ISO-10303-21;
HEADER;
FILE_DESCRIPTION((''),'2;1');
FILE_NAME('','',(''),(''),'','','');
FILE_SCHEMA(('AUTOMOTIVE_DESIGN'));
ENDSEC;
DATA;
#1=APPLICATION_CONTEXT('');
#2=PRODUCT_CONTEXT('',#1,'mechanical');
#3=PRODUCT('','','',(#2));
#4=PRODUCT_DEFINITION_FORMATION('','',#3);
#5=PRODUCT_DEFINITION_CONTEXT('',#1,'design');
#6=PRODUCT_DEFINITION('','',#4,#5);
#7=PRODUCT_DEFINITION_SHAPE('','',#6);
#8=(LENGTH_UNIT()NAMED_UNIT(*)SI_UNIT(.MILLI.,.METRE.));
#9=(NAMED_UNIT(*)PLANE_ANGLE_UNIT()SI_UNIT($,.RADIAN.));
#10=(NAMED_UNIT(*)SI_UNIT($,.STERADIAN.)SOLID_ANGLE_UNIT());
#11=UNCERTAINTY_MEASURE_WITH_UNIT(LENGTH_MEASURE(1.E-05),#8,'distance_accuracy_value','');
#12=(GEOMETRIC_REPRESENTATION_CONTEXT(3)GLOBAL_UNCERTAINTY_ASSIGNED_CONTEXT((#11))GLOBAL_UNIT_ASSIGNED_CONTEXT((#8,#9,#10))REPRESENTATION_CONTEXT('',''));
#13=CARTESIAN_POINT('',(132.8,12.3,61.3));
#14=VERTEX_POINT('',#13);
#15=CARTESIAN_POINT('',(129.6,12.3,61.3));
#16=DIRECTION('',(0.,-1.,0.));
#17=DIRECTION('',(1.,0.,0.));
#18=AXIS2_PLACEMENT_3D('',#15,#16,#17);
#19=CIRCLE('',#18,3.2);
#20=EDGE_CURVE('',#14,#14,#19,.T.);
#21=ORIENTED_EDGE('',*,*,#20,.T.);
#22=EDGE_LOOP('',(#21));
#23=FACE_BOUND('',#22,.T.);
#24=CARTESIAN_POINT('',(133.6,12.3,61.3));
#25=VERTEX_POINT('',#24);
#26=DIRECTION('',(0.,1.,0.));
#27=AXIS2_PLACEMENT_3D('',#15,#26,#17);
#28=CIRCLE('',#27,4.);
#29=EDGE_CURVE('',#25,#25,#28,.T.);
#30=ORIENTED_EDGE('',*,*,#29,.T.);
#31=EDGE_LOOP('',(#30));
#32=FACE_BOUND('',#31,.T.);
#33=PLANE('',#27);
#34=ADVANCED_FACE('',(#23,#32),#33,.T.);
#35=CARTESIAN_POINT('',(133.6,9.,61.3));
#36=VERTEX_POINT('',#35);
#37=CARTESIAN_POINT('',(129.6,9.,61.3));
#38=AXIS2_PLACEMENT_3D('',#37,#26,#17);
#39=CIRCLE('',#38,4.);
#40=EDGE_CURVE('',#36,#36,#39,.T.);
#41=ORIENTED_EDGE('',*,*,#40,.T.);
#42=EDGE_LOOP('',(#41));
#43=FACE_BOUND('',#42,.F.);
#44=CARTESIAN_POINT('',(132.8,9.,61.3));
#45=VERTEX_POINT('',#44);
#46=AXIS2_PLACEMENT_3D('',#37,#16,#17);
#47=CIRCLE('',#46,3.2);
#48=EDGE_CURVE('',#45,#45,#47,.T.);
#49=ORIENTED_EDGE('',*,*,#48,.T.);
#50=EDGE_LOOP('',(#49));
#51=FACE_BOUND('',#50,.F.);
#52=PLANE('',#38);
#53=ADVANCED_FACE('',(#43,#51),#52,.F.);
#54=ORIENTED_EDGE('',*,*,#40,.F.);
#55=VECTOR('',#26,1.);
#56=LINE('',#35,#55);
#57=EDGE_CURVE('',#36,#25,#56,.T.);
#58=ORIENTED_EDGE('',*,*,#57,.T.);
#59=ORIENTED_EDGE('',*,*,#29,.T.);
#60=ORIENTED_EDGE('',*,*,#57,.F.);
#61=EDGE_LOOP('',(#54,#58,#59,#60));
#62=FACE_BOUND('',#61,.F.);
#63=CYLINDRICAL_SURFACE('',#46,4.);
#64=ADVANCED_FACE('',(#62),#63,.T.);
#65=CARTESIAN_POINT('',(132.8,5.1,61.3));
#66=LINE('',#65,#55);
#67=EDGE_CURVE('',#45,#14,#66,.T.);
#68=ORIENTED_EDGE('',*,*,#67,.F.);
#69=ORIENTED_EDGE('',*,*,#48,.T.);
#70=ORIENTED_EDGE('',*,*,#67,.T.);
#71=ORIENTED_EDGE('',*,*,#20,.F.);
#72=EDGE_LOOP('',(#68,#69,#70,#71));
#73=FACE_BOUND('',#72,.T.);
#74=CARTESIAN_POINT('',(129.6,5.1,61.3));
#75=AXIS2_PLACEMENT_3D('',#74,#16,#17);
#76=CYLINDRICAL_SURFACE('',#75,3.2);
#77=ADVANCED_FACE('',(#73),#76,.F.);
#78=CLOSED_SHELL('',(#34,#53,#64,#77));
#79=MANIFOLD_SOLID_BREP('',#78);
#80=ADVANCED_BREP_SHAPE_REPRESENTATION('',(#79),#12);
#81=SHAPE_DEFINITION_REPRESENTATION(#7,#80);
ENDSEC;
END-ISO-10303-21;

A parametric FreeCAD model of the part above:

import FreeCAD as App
import Part
import Sketcher
Q = App.Units.Quantity

doc = App.newDocument("Part")
body = doc.addObject("PartDesign::Body", "Body")

sketch1 = body.newObject("Sketcher::SketchObject", "Sketch")
sketch1.AttachmentSupport = (doc.getObject("XZ_Plane"), [""])
sketch1.MapMode = "FlatFace"
sketch1.AttachmentOffset = App.Placement(App.Vector(0, 0, -5.1), App.Rotation())
sketch1.addGeometry(Part.Circle(App.Vector(129.6, 61.3, 0), App.Vector(0, 0, 1), 3.2), False)
sketch1.addConstraint([
    Sketcher.Constraint("Diameter", 0, Q("6.4 mm")),
    Sketcher.Constraint("DistanceX", -1, 1, 0, 3, Q("129.6 mm")),
    Sketcher.Constraint("DistanceY", -1, 1, 0, 3, Q("61.3 mm")),
])
pad1 = body.newObject("PartDesign::Pad", "Pad")
pad1.Profile = sketch1
pad1.Length = 10
pad1.Reversed = True
body2 = doc.addObject("PartDesign::Body", "Body001")

sketch2 = body2.newObject("Sketcher::SketchObject", "Sketch001")
sketch2.AttachmentSupport = (doc.getObject("XZ_Plane001"), [""])
sketch2.MapMode = "FlatFace"
sketch2.AttachmentOffset = App.Placement(App.Vector(0, 0, -9), App.Rotation())
sketch2.addGeometry(Part.Circle(App.Vector(129.6, 61.3, 0), App.Vector(0, 0, 1), 4), False)
sketch2.addConstraint([
    Sketcher.Constraint("Diameter", 0, Q("8 mm")),
    Sketcher.Constraint("DistanceX", -1, 1, 0, 3, Q("129.6 mm")),
    Sketcher.Constraint("DistanceY", -1, 1, 0, 3, Q("61.3 mm")),
])
pad2 = body2.newObject("PartDesign::Pad", "Pad001")
pad2.Profile = sketch2
pad2.Length = 3.3
pad2.Reversed = True
doc.recompute()

boolean = body2.newObject("PartDesign::Boolean", "Boolean")
boolean.Type = "Cut"
boolean.addObjects([body])

doc.recompute()
